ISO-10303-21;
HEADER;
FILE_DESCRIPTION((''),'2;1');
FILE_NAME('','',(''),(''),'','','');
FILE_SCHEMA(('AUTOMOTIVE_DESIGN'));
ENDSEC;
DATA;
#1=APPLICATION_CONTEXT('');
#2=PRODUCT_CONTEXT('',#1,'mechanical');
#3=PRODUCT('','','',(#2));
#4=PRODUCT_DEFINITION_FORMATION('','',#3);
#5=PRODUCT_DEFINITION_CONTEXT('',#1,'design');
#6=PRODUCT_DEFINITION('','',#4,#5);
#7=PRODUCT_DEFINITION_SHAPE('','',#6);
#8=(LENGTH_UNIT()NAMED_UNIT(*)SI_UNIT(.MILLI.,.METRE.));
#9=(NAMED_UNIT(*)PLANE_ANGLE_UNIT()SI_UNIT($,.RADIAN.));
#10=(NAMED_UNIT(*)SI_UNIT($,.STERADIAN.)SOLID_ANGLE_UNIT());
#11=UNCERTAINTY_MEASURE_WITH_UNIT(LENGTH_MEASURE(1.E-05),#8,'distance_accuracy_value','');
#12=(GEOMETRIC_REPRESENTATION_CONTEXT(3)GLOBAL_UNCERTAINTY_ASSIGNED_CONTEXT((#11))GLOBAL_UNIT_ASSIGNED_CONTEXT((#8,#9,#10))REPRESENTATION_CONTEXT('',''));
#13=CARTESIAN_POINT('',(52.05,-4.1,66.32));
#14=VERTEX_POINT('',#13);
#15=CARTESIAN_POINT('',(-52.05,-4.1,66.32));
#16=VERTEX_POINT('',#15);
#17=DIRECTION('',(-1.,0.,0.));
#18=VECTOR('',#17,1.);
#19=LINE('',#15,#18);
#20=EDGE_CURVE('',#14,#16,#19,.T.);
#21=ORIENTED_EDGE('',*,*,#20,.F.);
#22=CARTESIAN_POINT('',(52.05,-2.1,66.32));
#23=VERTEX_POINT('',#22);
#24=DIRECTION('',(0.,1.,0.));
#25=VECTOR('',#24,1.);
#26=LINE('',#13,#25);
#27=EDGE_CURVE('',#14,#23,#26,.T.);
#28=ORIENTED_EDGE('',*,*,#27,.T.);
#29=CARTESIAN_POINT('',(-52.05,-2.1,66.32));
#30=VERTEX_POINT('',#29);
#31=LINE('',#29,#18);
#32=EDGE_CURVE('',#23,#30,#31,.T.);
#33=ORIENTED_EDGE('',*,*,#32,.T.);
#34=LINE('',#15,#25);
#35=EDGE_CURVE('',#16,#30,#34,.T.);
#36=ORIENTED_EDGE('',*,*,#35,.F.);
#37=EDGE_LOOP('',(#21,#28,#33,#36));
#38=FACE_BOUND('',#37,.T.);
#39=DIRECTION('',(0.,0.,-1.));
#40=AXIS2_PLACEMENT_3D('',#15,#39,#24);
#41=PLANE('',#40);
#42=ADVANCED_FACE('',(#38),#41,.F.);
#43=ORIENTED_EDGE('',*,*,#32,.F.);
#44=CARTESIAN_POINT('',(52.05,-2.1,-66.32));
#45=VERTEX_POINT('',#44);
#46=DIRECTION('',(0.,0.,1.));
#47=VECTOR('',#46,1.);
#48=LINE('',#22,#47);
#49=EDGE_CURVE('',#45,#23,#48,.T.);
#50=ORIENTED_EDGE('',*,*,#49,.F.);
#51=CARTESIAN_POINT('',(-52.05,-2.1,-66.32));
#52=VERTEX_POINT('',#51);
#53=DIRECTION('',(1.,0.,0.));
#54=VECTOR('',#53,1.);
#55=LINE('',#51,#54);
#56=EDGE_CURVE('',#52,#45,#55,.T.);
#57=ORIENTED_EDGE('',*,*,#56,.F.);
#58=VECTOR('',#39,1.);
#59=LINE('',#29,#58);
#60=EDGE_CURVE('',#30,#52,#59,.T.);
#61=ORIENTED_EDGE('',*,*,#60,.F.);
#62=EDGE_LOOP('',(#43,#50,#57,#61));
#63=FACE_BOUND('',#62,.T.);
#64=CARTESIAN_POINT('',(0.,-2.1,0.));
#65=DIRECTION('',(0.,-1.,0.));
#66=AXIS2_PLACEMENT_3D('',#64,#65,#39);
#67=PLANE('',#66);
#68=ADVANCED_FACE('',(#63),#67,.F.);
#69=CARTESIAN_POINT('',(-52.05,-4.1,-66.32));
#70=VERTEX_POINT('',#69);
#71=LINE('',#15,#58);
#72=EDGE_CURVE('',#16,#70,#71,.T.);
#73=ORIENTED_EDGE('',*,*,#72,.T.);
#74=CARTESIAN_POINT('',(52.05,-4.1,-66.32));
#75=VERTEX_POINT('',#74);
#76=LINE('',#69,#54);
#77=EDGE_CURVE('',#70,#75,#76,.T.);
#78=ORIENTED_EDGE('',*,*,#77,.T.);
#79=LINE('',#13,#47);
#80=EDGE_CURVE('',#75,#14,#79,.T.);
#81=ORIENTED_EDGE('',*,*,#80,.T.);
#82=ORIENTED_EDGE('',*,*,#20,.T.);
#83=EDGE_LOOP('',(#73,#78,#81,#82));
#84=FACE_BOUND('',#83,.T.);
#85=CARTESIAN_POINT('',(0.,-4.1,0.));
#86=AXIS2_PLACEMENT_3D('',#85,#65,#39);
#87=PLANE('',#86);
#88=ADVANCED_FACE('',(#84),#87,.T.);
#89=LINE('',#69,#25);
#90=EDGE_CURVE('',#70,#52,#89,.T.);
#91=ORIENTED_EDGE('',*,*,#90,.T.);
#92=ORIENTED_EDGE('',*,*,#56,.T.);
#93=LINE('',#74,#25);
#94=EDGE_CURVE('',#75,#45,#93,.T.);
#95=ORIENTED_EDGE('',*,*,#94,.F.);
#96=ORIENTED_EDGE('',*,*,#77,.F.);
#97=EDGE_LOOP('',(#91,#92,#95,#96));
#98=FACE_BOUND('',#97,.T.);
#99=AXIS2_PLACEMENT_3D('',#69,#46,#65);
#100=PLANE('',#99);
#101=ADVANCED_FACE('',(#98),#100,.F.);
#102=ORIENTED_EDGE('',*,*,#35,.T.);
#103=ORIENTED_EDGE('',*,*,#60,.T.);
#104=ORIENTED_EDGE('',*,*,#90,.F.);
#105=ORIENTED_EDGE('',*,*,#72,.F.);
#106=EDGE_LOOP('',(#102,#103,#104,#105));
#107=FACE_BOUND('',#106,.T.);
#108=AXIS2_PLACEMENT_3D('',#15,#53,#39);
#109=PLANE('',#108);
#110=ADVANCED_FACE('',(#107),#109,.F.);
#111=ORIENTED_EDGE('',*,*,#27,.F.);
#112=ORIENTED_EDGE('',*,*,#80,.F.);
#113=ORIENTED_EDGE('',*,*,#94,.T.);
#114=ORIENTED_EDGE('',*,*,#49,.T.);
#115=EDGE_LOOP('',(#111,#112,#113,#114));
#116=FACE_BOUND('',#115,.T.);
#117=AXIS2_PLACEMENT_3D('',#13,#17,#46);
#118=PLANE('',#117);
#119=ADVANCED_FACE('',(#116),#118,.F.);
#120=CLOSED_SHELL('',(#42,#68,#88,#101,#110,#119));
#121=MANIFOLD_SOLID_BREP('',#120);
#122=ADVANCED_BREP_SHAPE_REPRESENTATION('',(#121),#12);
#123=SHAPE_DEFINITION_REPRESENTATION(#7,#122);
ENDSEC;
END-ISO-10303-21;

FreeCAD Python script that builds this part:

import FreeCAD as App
import Part
import Sketcher

V = App.Vector


def add_polygon(sketch, points):
    """Adds a closed chain of lines whose ends are joined by coincident constraints."""
    first, n = sketch.GeometryCount, len(points)
    for a, b in zip(points, points[1:] + points[:1]):
        sketch.addGeometry(Part.LineSegment(App.Vector(*a, 0), App.Vector(*b, 0)), False)
    for i in range(n):
        sketch.addConstraint(Sketcher.Constraint("Coincident", first + i, 2, first + (i + 1) % n, 1))

doc = App.newDocument("Part")
body = doc.addObject("PartDesign::Body", "Body")

sketch1 = body.newObject("Sketcher::SketchObject", "Sketch")
sketch1.AttachmentSupport = (doc.getObject("XZ_Plane"), [""])
sketch1.MapMode = "FlatFace"
sketch1.AttachmentOffset = App.Placement(V(0, 0, 2.1), App.Rotation())
add_polygon(sketch1, [(-52, 66), (-52, -66), (52, -66), (52, 66)])
sketch1.addConstraint([
    Sketcher.Constraint("Vertical", 0),
    Sketcher.Constraint("Horizontal", 1),
    Sketcher.Constraint("Vertical", 2),
    Sketcher.Constraint("Horizontal", 3),
    Sketcher.Constraint("Symmetric", 0, 2, 2, 2, -1, 1),
    Sketcher.Constraint("DistanceX", 1, 1, 1, 2, 104.1),
    Sketcher.Constraint("DistanceY", 0, 2, 0, 1, 132.64),
])
pad1 = body.newObject("PartDesign::Pad", "Pad")
pad1.Profile = sketch1
pad1.Length = 2

doc.recompute()
